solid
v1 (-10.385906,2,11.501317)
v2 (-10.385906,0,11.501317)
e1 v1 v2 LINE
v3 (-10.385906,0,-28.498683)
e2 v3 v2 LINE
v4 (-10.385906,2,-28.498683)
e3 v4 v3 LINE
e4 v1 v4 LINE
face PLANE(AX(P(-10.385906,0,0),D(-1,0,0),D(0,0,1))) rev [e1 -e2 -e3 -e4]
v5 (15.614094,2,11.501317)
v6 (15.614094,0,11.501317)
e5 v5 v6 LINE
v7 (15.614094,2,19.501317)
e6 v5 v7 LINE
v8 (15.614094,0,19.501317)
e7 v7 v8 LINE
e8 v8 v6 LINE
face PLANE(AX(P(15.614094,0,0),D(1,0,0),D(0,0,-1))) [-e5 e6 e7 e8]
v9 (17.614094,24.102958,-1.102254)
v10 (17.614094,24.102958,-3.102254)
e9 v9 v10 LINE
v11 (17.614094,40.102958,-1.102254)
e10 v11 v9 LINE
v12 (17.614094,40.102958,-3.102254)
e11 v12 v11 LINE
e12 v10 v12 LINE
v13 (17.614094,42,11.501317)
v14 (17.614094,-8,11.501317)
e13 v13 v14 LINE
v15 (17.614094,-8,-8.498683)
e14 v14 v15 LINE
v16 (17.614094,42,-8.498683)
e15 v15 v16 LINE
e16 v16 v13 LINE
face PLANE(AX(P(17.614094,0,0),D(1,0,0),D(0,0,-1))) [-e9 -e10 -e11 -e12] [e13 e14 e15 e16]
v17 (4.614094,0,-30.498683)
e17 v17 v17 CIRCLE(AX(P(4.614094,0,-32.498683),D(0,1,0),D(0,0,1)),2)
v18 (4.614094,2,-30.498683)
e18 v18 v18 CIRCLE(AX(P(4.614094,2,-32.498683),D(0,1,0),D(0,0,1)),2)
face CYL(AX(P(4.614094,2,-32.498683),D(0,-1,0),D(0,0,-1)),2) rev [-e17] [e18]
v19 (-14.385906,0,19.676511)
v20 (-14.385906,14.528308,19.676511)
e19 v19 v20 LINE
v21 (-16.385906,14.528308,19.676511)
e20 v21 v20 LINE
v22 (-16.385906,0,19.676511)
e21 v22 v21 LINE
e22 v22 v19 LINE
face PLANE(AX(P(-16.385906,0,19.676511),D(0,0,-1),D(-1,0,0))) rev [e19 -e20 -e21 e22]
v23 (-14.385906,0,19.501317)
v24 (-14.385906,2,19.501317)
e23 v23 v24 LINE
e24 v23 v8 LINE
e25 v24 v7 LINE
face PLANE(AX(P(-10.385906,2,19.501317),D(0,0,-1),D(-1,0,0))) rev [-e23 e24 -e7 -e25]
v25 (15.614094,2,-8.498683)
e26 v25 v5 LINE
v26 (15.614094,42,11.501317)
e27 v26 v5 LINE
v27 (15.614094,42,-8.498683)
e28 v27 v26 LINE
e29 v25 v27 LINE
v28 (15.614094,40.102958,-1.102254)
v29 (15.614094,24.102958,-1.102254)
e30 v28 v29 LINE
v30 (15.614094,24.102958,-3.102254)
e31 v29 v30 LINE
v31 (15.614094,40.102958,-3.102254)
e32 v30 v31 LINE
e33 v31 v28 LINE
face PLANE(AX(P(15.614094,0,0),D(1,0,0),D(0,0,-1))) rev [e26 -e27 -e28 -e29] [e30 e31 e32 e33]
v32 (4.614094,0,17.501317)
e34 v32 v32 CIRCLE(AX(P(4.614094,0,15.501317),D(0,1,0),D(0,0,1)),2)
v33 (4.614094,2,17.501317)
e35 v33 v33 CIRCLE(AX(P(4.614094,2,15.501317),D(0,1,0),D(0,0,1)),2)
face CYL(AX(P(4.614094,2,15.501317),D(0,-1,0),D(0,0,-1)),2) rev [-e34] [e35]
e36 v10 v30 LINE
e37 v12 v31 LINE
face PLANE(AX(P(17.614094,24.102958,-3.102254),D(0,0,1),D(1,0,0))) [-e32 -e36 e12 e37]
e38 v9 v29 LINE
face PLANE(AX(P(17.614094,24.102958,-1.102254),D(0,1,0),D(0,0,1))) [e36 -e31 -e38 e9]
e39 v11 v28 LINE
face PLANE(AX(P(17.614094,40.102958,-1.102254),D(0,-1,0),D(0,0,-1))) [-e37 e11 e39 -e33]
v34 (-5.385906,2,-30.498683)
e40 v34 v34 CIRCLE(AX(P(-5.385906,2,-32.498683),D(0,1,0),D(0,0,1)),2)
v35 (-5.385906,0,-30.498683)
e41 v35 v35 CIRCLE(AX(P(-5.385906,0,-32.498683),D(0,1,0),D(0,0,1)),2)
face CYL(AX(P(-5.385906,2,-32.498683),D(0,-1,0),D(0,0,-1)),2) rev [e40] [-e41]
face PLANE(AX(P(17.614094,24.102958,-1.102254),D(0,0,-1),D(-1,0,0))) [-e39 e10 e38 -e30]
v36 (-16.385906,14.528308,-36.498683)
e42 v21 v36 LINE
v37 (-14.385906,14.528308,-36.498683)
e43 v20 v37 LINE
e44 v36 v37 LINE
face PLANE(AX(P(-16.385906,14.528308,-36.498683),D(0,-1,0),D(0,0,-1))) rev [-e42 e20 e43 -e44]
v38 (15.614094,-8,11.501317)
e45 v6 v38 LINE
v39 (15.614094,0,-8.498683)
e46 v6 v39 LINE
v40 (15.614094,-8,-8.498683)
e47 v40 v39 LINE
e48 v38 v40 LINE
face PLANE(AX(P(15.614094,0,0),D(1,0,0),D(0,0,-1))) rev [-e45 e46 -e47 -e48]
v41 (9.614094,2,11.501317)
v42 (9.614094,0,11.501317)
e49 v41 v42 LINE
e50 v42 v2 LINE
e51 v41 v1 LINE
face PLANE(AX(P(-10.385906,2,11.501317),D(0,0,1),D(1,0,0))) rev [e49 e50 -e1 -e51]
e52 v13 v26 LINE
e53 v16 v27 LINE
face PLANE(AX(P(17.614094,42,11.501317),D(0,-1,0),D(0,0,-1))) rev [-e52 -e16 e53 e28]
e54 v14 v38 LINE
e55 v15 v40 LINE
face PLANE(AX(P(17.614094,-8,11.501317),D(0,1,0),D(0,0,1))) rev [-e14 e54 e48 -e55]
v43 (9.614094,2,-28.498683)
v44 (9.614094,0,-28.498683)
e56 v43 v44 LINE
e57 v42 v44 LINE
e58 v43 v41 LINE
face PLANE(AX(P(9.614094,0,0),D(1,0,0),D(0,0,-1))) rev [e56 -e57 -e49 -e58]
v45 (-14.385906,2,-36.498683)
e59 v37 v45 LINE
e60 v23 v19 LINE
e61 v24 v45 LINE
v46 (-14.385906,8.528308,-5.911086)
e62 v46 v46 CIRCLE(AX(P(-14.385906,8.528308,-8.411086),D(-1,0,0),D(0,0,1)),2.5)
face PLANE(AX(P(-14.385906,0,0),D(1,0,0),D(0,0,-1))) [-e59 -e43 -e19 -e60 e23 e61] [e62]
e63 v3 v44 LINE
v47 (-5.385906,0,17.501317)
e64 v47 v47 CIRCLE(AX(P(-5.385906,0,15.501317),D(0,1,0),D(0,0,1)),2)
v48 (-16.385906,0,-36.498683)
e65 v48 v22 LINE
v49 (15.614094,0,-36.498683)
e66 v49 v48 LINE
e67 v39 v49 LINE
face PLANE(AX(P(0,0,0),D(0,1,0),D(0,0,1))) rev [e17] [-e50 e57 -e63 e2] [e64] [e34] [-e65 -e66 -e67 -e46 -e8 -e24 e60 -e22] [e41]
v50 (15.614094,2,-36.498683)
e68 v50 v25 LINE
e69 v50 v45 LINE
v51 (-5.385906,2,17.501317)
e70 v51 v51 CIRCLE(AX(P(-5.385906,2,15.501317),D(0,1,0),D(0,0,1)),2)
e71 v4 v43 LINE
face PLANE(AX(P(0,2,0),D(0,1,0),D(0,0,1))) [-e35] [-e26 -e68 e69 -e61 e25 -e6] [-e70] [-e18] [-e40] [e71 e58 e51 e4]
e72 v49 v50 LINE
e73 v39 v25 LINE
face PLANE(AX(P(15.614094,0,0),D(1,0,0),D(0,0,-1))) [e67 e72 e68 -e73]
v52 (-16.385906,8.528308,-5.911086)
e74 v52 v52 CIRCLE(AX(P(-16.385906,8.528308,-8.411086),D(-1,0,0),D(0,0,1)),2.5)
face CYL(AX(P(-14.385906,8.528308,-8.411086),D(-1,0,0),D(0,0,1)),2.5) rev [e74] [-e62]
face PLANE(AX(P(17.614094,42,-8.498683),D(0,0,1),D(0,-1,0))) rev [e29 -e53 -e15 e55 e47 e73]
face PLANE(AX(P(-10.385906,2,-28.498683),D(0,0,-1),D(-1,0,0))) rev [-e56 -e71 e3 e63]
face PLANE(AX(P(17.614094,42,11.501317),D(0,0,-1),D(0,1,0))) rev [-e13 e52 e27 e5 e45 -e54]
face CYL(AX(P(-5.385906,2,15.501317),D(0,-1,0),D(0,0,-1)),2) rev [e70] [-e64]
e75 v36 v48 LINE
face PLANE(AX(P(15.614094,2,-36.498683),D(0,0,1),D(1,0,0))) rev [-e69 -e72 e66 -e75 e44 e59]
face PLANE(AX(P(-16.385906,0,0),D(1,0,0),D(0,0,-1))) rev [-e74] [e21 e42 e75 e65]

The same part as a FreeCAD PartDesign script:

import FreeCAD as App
import Part
import Sketcher
Q = App.Units.Quantity

doc = App.newDocument("Part")
body = doc.addObject("PartDesign::Body", "Body")

# Sketch on XZ plane
sketch1 = body.newObject("Sketcher::SketchObject", "Sketch")
sketch1.AttachmentSupport = (doc.getObject("XZ_Plane"), [""])
sketch1.MapMode = "FlatFace"
sketch1.addGeometry([
    Part.LineSegment(App.Vector(-10.4, 11.5, 0), App.Vector(-10.4, 19.5, 0)),  # 0
    Part.LineSegment(App.Vector(-10.4, 19.5, 0), App.Vector(9.6, 19.5, 0)),  # 1
    Part.LineSegment(App.Vector(9.6, 19.5, 0), App.Vector(9.6, 11.5, 0)),  # 2
    Part.LineSegment(App.Vector(9.6, 11.5, 0), App.Vector(-10.4, 11.5, 0)),  # 3
    Part.Circle(App.Vector(-5.4, 15.5, 0), App.Vector(0, 0, 1), 2),  # 4
    Part.Circle(App.Vector(4.6, 15.5, 0), App.Vector(0, 0, 1), 2),  # 5
], False)
sketch1.addConstraint([
    Sketcher.Constraint("Coincident", 0, 2, 1, 1),
    Sketcher.Constraint("Coincident", 1, 2, 2, 1),
    Sketcher.Constraint("Coincident", 2, 2, 3, 1),
    Sketcher.Constraint("Coincident", 3, 2, 0, 1),
    Sketcher.Constraint("Vertical", 0),
    Sketcher.Constraint("Horizontal", 1),
    Sketcher.Constraint("Vertical", 2),
    Sketcher.Constraint("Horizontal", 3),
    Sketcher.Constraint("Equal", 4, 5),
    Sketcher.Constraint("Horizontal", 4, 3, 5, 3),
    Sketcher.Constraint("Diameter", 4, Q("4 mm")),
    Sketcher.Constraint("DistanceX", 1, 1, 1, 2, Q("20 mm")),
    Sketcher.Constraint("DistanceY", 0, 1, 0, 2, Q("8 mm")),
    Sketcher.Constraint("DistanceX", 4, 3, 5, 3, Q("10 mm")),
    Sketcher.Constraint("DistanceX", 0, 2, 4, 3, Q("5 mm")),
    Sketcher.Constraint("DistanceY", 4, 3, 0, 2, Q("4 mm")),
    Sketcher.Constraint("DistanceX", 4, 3, -1, 1, Q("5.385906 mm")),
    Sketcher.Constraint("DistanceY", -1, 1, 4, 3, Q("15.501317 mm")),
])
pad1 = body.newObject("PartDesign::Pad", "Pad")
pad1.Profile = sketch1
pad1.Length = 2
pad1.Reversed = True
body2 = doc.addObject("PartDesign::Body", "Body001")

# Sketch on XZ plane
sketch2 = body2.newObject("Sketcher::SketchObject", "Sketch001")
sketch2.AttachmentSupport = (doc.getObject("XZ_Plane001"), [""])
sketch2.MapMode = "FlatFace"
sketch2.addGeometry([
    Part.LineSegment(App.Vector(-10.4, -36.5, 0), App.Vector(-10.4, -28.5, 0)),  # 0
    Part.LineSegment(App.Vector(-10.4, -28.5, 0), App.Vector(9.6, -28.5, 0)),  # 1
    Part.LineSegment(App.Vector(9.6, -28.5, 0), App.Vector(9.6, -36.5, 0)),  # 2
    Part.LineSegment(App.Vector(9.6, -36.5, 0), App.Vector(-10.4, -36.5, 0)),  # 3
    Part.Circle(App.Vector(-5.4, -32.5, 0), App.Vector(0, 0, 1), 2),  # 4
    Part.Circle(App.Vector(4.6, -32.5, 0), App.Vector(0, 0, 1), 2),  # 5
], False)
sketch2.addConstraint([
    Sketcher.Constraint("Coincident", 0, 2, 1, 1),
    Sketcher.Constraint("Coincident", 1, 2, 2, 1),
    Sketcher.Constraint("Coincident", 2, 2, 3, 1),
    Sketcher.Constraint("Coincident", 3, 2, 0, 1),
    Sketcher.Constraint("Vertical", 0),
    Sketcher.Constraint("Horizontal", 1),
    Sketcher.Constraint("Vertical", 2),
    Sketcher.Constraint("Horizontal", 3),
    Sketcher.Constraint("Equal", 4, 5),
    Sketcher.Constraint("Horizontal", 4, 3, 5, 3),
    Sketcher.Constraint("Diameter", 4, Q("4 mm")),
    Sketcher.Constraint("DistanceX", 1, 1, 1, 2, Q("20 mm")),
    Sketcher.Constraint("DistanceY", 0, 1, 0, 2, Q("8 mm")),
    Sketcher.Constraint("DistanceX", 4, 3, 5, 3, Q("10 mm")),
    Sketcher.Constraint("DistanceX", 0, 2, 4, 3, Q("5 mm")),
    Sketcher.Constraint("DistanceY", 4, 3, 0, 2, Q("4 mm")),
    Sketcher.Constraint("DistanceX", 4, 3, -1, 1, Q("5.385906 mm")),
    Sketcher.Constraint("DistanceY", 4, 3, -1, 1, Q("32.498683 mm")),
])
pad2 = body2.newObject("PartDesign::Pad", "Pad001")
pad2.Profile = sketch2
pad2.Length = 2
pad2.Reversed = True
body.AllowCompound = True
doc.recompute()

boolean = body.newObject("PartDesign::Boolean", "Boolean")
boolean.Type = "Fuse"
boolean.addObjects([body2])

# Sketch on YZ plane
sketch3 = body.newObject("Sketcher::SketchObject", "Sketch002")
sketch3.AttachmentSupport = (doc.getObject("YZ_Plane"), [""])
sketch3.MapMode = "FlatFace"
sketch3.AttachmentOffset = App.Placement(App.Vector(0, 0, 9.614094), App.Rotation())
sketch3.addGeometry([
    Part.LineSegment(App.Vector(2, 19.5, 0), App.Vector(0, 19.5, 0)),
    Part.LineSegment(App.Vector(0, 19.5, 0), App.Vector(0, -36.5, 0)),
    Part.LineSegment(App.Vector(0, -36.5, 0), App.Vector(2, -36.5, 0)),
    Part.LineSegment(App.Vector(2, -36.5, 0), App.Vector(2, 19.5, 0)),
], False)
sketch3.addConstraint([
    Sketcher.Constraint("Coincident", 0, 2, 1, 1),
    Sketcher.Constraint("Coincident", 1, 2, 2, 1),
    Sketcher.Constraint("Coincident", 2, 2, 3, 1),
    Sketcher.Constraint("Coincident", 3, 2, 0, 1),
    Sketcher.Constraint("Horizontal", 0),
    Sketcher.Constraint("Vertical", 1),
    Sketcher.Constraint("Horizontal", 2),
    Sketcher.Constraint("Vertical", 3),
    Sketcher.Constraint("PointOnObject", 0, 2, -2),
    Sketcher.Constraint("DistanceX", 0, 2, 0, 1, Q("2 mm")),
    Sketcher.Constraint("DistanceY", 1, 2, 1, 1, Q("56 mm")),
    Sketcher.Constraint("DistanceY", -1, 1, 0, 2, Q("19.501317 mm")),
])
pad3 = body.newObject("PartDesign::Pad", "Pad002")
pad3.Profile = sketch3
pad3.Length = 6

# Sketch on YZ plane
sketch4 = body.newObject("Sketcher::SketchObject", "Sketch003")
sketch4.AttachmentSupport = (doc.getObject("YZ_Plane"), [""])
sketch4.MapMode = "FlatFace"
sketch4.AttachmentOffset = App.Placement(App.Vector(0, 0, -10.385906), App.Rotation())
sketch4.addGeometry([
    Part.LineSegment(App.Vector(2, -36.5, 0), App.Vector(0, -36.5, 0)),
    Part.LineSegment(App.Vector(0, -36.5, 0), App.Vector(0, 19.5, 0)),
    Part.LineSegment(App.Vector(0, 19.5, 0), App.Vector(2, 19.5, 0)),
    Part.LineSegment(App.Vector(2, 19.5, 0), App.Vector(2, -36.5, 0)),
], False)
sketch4.addConstraint([
    Sketcher.Constraint("Coincident", 0, 2, 1, 1),
    Sketcher.Constraint("Coincident", 1, 2, 2, 1),
    Sketcher.Constraint("Coincident", 2, 2, 3, 1),
    Sketcher.Constraint("Coincident", 3, 2, 0, 1),
    Sketcher.Constraint("Horizontal", 0),
    Sketcher.Constraint("Vertical", 1),
    Sketcher.Constraint("Horizontal", 2),
    Sketcher.Constraint("Vertical", 3),
    Sketcher.Constraint("PointOnObject", 0, 2, -2),
    Sketcher.Constraint("DistanceX", 0, 2, 0, 1, Q("2 mm")),
    Sketcher.Constraint("DistanceY", 1, 1, 1, 2, Q("56 mm")),
    Sketcher.Constraint("DistanceY", 0, 2, -1, 1, Q("36.498683 mm")),
])
pad4 = body.newObject("PartDesign::Pad", "Pad003")
pad4.Profile = sketch4
pad4.Length = 4
pad4.Reversed = True

# Sketch on YZ plane
sketch5 = body.newObject("Sketcher::SketchObject", "Sketch004")
sketch5.AttachmentSupport = (doc.getObject("YZ_Plane"), [""])
sketch5.MapMode = "FlatFace"
sketch5.AttachmentOffset = App.Placement(App.Vector(0, 0, -14.385906), App.Rotation())
sketch5.addGeometry([
    Part.LineSegment(App.Vector(15, -36, 0), App.Vector(0, -36, 0)),
    Part.LineSegment(App.Vector(0, -36, 0), App.Vector(0, 20, 0)),
    Part.LineSegment(App.Vector(0, 20, 0), App.Vector(15, 20, 0)),
    Part.LineSegment(App.Vector(15, 20, 0), App.Vector(15, -36, 0)),
], False)
sketch5.addConstraint([
    Sketcher.Constraint("Coincident", 0, 2, 1, 1),
    Sketcher.Constraint("Coincident", 1, 2, 2, 1),
    Sketcher.Constraint("Coincident", 2, 2, 3, 1),
    Sketcher.Constraint("Coincident", 3, 2, 0, 1),
    Sketcher.Constraint("Horizontal", 0),
    Sketcher.Constraint("Vertical", 1),
    Sketcher.Constraint("Horizontal", 2),
    Sketcher.Constraint("Vertical", 3),
    Sketcher.Constraint("PointOnObject", 0, 2, -2),
    Sketcher.Constraint("DistanceX", 0, 2, 0, 1, Q("14.528308 mm")),
    Sketcher.Constraint("DistanceY", 1, 1, 1, 2, Q("56.175194 mm")),
    Sketcher.Constraint("DistanceY", -1, 1, 1, 2, Q("19.676511 mm")),
])
pad5 = body.newObject("PartDesign::Pad", "Pad004")
pad5.Profile = sketch5
pad5.Length = 2
pad5.Reversed = True

# Sketch on YZ plane
sketch6 = body.newObject("Sketcher::SketchObject", "Sketch005")
sketch6.AttachmentSupport = (doc.getObject("YZ_Plane"), [""])
sketch6.MapMode = "FlatFace"
sketch6.AttachmentOffset = App.Placement(App.Vector(0, 0, -16.385906), App.Rotation())
sketch6.addGeometry(Part.Circle(App.Vector(8.5, -8.4, 0), App.Vector(0, 0, 1), 2.5), False)
sketch6.addConstraint([
    Sketcher.Constraint("Diameter", 0, Q("5 mm")),
    Sketcher.Constraint("DistanceX", -1, 1, 0, 3, Q("8.528308 mm")),
    Sketcher.Constraint("DistanceY", 0, 3, -1, 1, Q("8.411086 mm")),
])
pocket1 = body.newObject("PartDesign::Pocket", "Pocket")
pocket1.Profile = sketch6
pocket1.Length = 2
pocket1.Reversed = True

# Sketch on YZ plane
sketch7 = body.newObject("Sketcher::SketchObject", "Sketch006")
sketch7.AttachmentSupport = (doc.getObject("YZ_Plane"), [""])
sketch7.MapMode = "FlatFace"
sketch7.AttachmentOffset = App.Placement(App.Vector(0, 0, 15.614094), App.Rotation())
sketch7.addGeometry([
    Part.LineSegment(App.Vector(42, 11.5, 0), App.Vector(-8, 11.5, 0)),  # 0
    Part.LineSegment(App.Vector(-8, 11.5, 0), App.Vector(-8, -8.5, 0)),  # 1
    Part.LineSegment(App.Vector(-8, -8.5, 0), App.Vector(42, -8.5, 0)),  # 2
    Part.LineSegment(App.Vector(42, -8.5, 0), App.Vector(42, 11.5, 0)),  # 3
    Part.LineSegment(App.Vector(24.1, -3.1, 0), App.Vector(24.1, -1.1, 0)),  # 4
    Part.LineSegment(App.Vector(24.1, -1.1, 0), App.Vector(40.1, -1.1, 0)),  # 5
    Part.LineSegment(App.Vector(40.1, -1.1, 0), App.Vector(40.1, -3.1, 0)),  # 6
    Part.LineSegment(App.Vector(40.1, -3.1, 0), App.Vector(24.1, -3.1, 0)),  # 7
], False)
sketch7.addConstraint([
    Sketcher.Constraint("Coincident", 0, 2, 1, 1),
    Sketcher.Constraint("Coincident", 1, 2, 2, 1),
    Sketcher.Constraint("Coincident", 2, 2, 3, 1),
    Sketcher.Constraint("Coincident", 3, 2, 0, 1),
    Sketcher.Constraint("Coincident", 4, 2, 5, 1),
    Sketcher.Constraint("Coincident", 5, 2, 6, 1),
    Sketcher.Constraint("Coincident", 6, 2, 7, 1),
    Sketcher.Constraint("Coincident", 7, 2, 4, 1),
    Sketcher.Constraint("Horizontal", 0),
    Sketcher.Constraint("Vertical", 1),
    Sketcher.Constraint("Horizontal", 2),
    Sketcher.Constraint("Vertical", 3),
    Sketcher.Constraint("Vertical", 4),
    Sketcher.Constraint("Horizontal", 5),
    Sketcher.Constraint("Vertical", 6),
    Sketcher.Constraint("Horizontal", 7),
    Sketcher.Constraint("DistanceX", 0, 2, 0, 1, Q("50 mm")),
    Sketcher.Constraint("DistanceX", 5, 1, 5, 2, Q("16 mm")),
    Sketcher.Constraint("DistanceY", 1, 2, 1, 1, Q("20 mm")),
    Sketcher.Constraint("DistanceY", 4, 1, 4, 2, Q("2 mm")),
    Sketcher.Constraint("DistanceX", 0, 2, -1, 1, Q("8 mm")),
    Sketcher.Constraint("DistanceX", -1, 1, 4, 2, Q("24.102958 mm")),
    Sketcher.Constraint("DistanceY", 2, 2, 4, 2, Q("7.396429 mm")),
    Sketcher.Constraint("DistanceY", -1, 1, 0, 2, Q("11.501317 mm")),
])
pad6 = body.newObject("PartDesign::Pad", "Pad005")
pad6.Profile = sketch7
pad6.Length = 2

doc.recompute()
